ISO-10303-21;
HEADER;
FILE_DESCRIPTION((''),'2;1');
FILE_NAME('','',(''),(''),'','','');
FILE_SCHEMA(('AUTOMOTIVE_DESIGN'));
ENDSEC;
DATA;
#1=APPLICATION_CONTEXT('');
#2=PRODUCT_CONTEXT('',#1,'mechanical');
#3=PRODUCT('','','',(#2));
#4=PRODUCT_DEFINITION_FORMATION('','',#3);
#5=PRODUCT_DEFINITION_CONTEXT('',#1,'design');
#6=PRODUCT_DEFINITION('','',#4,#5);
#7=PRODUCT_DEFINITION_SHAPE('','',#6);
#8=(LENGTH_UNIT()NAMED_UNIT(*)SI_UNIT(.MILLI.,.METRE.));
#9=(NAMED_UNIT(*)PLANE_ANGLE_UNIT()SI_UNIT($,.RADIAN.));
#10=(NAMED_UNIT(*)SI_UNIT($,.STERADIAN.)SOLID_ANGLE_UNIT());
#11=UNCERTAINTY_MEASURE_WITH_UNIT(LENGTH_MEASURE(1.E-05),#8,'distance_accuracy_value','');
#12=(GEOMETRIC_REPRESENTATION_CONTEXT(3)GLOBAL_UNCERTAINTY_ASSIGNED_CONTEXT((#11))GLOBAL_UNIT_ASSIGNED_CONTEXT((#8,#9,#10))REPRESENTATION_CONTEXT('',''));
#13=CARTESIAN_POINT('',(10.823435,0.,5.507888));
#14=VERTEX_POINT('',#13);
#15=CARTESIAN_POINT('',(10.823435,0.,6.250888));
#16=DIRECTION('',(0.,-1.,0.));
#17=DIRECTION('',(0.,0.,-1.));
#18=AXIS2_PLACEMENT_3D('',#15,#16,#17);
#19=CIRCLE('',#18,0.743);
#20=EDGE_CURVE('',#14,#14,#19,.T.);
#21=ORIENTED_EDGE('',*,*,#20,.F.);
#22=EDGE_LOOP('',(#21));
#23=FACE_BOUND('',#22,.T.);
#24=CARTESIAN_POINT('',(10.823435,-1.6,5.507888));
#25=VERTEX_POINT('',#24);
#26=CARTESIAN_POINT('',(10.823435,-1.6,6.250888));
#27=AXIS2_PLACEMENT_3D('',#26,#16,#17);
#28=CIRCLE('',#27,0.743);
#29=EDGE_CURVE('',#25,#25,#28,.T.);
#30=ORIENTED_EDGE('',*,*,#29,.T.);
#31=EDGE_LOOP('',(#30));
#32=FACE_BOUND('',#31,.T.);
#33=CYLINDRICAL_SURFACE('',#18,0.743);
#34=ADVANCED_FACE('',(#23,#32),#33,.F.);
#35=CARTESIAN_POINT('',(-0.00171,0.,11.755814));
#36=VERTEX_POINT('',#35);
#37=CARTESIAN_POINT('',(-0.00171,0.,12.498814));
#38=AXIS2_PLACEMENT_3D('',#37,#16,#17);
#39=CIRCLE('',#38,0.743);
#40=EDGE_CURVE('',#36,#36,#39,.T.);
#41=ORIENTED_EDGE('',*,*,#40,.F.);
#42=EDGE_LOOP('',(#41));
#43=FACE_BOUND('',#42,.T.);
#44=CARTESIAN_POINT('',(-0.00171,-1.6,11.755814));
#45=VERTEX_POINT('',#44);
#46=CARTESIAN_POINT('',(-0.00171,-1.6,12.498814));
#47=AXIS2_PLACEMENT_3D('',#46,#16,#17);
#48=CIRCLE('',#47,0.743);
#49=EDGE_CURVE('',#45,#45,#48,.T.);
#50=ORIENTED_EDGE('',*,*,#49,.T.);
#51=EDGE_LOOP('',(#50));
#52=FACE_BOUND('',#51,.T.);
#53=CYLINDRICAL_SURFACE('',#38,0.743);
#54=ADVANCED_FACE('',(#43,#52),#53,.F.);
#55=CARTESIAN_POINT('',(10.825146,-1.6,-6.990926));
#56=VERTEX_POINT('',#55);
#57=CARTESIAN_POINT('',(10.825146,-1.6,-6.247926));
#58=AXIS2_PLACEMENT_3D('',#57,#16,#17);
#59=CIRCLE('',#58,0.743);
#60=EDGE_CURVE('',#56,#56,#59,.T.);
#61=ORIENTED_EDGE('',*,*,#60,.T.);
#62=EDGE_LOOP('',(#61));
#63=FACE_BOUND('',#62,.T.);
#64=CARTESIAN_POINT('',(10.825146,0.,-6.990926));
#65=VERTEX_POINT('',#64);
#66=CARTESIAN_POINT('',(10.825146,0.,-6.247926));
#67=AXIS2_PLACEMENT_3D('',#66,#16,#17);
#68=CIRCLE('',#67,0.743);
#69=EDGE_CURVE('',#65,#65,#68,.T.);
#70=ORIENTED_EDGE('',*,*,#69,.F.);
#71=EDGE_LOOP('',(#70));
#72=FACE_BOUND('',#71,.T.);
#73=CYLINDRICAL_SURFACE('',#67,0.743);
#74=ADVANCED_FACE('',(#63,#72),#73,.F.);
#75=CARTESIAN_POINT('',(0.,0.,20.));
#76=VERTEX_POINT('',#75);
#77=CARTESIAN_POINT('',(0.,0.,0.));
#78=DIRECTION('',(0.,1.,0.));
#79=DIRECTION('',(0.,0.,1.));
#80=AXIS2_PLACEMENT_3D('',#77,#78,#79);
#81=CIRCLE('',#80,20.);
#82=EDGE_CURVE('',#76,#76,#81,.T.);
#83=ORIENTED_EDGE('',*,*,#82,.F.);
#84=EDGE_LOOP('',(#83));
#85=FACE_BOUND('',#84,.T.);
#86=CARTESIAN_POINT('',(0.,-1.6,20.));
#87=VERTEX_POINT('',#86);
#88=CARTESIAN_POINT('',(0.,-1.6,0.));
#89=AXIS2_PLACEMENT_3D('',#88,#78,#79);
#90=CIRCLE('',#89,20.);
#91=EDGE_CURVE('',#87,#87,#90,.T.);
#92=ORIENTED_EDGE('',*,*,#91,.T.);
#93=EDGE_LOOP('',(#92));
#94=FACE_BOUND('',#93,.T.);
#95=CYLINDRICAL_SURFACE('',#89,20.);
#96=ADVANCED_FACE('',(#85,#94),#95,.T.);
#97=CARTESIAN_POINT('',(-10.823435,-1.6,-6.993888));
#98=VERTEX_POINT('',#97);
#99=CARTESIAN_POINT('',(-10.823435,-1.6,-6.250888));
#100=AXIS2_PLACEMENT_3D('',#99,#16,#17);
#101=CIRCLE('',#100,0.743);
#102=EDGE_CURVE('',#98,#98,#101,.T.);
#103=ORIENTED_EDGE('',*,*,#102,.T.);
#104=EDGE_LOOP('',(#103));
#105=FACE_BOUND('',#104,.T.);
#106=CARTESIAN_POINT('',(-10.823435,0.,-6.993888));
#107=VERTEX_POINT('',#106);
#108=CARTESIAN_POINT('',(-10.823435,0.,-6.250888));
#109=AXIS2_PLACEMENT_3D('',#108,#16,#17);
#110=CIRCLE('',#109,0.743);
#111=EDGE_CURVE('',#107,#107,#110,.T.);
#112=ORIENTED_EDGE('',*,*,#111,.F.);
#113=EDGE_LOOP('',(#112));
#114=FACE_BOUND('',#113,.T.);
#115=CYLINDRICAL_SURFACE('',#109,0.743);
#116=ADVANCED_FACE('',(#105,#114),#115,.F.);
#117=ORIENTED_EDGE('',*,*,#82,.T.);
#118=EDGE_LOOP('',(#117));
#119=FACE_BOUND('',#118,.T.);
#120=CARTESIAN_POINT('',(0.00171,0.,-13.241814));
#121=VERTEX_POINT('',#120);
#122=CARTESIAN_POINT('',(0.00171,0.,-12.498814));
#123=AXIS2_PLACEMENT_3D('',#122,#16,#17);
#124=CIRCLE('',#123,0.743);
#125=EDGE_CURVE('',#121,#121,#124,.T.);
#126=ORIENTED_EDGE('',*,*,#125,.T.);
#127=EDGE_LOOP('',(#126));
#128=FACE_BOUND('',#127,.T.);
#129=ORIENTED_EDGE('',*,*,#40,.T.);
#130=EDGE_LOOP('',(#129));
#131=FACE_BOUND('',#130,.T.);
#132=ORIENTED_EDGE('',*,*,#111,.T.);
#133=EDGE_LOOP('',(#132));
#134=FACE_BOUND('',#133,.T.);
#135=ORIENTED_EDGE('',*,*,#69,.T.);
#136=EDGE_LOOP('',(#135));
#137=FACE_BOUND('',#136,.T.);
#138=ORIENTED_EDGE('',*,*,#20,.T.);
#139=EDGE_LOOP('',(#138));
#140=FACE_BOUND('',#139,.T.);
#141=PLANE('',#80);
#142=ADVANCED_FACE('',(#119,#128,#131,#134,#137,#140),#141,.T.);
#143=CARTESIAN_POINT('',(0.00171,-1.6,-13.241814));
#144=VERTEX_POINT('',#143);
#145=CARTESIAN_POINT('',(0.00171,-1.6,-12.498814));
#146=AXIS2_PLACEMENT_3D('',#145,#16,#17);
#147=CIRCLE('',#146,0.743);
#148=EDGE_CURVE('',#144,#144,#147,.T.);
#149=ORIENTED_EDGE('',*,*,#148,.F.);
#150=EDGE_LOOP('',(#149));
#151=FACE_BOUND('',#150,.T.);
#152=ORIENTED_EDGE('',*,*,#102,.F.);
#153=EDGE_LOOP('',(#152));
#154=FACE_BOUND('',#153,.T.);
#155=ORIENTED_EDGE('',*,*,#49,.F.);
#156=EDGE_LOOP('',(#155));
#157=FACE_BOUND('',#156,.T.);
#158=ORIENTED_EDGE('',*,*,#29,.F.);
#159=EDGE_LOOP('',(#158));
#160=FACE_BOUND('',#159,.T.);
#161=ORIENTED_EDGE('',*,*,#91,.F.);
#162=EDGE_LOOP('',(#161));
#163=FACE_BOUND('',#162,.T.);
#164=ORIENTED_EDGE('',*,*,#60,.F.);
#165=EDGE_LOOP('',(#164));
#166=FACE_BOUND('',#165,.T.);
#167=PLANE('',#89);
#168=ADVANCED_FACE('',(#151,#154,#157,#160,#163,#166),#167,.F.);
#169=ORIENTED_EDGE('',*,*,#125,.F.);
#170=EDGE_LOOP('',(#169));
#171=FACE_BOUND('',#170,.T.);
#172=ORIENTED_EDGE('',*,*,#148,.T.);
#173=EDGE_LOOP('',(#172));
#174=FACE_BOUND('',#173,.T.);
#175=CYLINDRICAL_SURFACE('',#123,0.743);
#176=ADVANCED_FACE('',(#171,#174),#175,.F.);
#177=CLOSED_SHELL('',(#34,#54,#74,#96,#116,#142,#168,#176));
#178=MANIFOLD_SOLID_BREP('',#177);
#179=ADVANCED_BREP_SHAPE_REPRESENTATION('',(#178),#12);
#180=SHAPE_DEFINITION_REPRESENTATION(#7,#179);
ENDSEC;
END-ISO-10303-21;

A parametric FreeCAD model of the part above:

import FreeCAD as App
import Part
import Sketcher

doc = App.newDocument("Part")
body = doc.addObject("PartDesign::Body", "Body")

# Sketch on XZ plane
sketch1 = doc.addObject("Sketcher::SketchObject", "Sketch")
body.addObject(sketch1)
sketch1.AttachmentSupport = (doc.XZ_Plane, [""])
sketch1.MapMode = "FlatFace"
sketch1.addGeometry(Part.Circle(App.Vector(0, 0, 0), App.Vector(0, 0, 1), 20), False)
sketch1.addConstraint(Sketcher.Constraint("Coincident", 0, 3, -1, 1))
sketch1.addConstraint(Sketcher.Constraint("Diameter", 0, 40.0))
pad1 = doc.addObject("PartDesign::Pad", "Pad")
body.addObject(pad1)
pad1.Profile = sketch1
pad1.Length = 1.6

# Sketch on XZ plane
sketch2 = doc.addObject("Sketcher::SketchObject", "Sketch001")
body.addObject(sketch2)
sketch2.AttachmentSupport = (doc.XZ_Plane, [""])
sketch2.MapMode = "FlatFace"
sketch2.AttachmentOffset = App.Placement(App.Vector(0, 0, 1.6), App.Rotation())
sketch2.addGeometry(Part.Circle(App.Vector(-0.00171, 12.498814, 0), App.Vector(0, 0, 1), 0.743), False)
sketch2.addGeometry(Part.Circle(App.Vector(10.823435, 6.250888, 0), App.Vector(0, 0, 1), 0.743), False)
sketch2.addGeometry(Part.Circle(App.Vector(10.825146, -6.247926, 0), App.Vector(0, 0, 1), 0.743), False)
sketch2.addGeometry(Part.Circle(App.Vector(0.00171, -12.498814, 0), App.Vector(0, 0, 1), 0.743), False)
sketch2.addGeometry(Part.Circle(App.Vector(-10.823435, -6.250888, 0), App.Vector(0, 0, 1), 0.743), False)
sketch2.addConstraint(Sketcher.Constraint("Equal", 0, 1))
sketch2.addConstraint(Sketcher.Constraint("Equal", 1, 2))
sketch2.addConstraint(Sketcher.Constraint("Equal", 2, 3))
sketch2.addConstraint(Sketcher.Constraint("Equal", 3, 4))
sketch2.addConstraint(Sketcher.Constraint("Symmetric", 0, 3, 3, 3, -1, 1))
sketch2.addConstraint(Sketcher.Constraint("Symmetric", 1, 3, 4, 3, -1, 1))
sketch2.addConstraint(Sketcher.Constraint("Diameter", 0, 1.486))
sketch2.addConstraint(Sketcher.Constraint("DistanceX", 0, 3, -1, 1, 0.00171))
sketch2.addConstraint(Sketcher.Constraint("DistanceX", 1, 3, 2, 3, 0.00171))
sketch2.addConstraint(Sketcher.Constraint("DistanceY", 2, 3, 0, 3, 18.74674))
sketch2.addConstraint(Sketcher.Constraint("DistanceY", 3, 3, 0, 3, 24.997628))
sketch2.addConstraint(Sketcher.Constraint("DistanceX", 4, 3, 2, 3, 21.648581))
sketch2.addConstraint(Sketcher.Constraint("DistanceY", 4, 3, 2, 3, 0.002962))
pocket1 = doc.addObject("PartDesign::Pocket", "Pocket")
body.addObject(pocket1)
pocket1.Profile = sketch2
pocket1.Length = 1.6

doc.recompute()
